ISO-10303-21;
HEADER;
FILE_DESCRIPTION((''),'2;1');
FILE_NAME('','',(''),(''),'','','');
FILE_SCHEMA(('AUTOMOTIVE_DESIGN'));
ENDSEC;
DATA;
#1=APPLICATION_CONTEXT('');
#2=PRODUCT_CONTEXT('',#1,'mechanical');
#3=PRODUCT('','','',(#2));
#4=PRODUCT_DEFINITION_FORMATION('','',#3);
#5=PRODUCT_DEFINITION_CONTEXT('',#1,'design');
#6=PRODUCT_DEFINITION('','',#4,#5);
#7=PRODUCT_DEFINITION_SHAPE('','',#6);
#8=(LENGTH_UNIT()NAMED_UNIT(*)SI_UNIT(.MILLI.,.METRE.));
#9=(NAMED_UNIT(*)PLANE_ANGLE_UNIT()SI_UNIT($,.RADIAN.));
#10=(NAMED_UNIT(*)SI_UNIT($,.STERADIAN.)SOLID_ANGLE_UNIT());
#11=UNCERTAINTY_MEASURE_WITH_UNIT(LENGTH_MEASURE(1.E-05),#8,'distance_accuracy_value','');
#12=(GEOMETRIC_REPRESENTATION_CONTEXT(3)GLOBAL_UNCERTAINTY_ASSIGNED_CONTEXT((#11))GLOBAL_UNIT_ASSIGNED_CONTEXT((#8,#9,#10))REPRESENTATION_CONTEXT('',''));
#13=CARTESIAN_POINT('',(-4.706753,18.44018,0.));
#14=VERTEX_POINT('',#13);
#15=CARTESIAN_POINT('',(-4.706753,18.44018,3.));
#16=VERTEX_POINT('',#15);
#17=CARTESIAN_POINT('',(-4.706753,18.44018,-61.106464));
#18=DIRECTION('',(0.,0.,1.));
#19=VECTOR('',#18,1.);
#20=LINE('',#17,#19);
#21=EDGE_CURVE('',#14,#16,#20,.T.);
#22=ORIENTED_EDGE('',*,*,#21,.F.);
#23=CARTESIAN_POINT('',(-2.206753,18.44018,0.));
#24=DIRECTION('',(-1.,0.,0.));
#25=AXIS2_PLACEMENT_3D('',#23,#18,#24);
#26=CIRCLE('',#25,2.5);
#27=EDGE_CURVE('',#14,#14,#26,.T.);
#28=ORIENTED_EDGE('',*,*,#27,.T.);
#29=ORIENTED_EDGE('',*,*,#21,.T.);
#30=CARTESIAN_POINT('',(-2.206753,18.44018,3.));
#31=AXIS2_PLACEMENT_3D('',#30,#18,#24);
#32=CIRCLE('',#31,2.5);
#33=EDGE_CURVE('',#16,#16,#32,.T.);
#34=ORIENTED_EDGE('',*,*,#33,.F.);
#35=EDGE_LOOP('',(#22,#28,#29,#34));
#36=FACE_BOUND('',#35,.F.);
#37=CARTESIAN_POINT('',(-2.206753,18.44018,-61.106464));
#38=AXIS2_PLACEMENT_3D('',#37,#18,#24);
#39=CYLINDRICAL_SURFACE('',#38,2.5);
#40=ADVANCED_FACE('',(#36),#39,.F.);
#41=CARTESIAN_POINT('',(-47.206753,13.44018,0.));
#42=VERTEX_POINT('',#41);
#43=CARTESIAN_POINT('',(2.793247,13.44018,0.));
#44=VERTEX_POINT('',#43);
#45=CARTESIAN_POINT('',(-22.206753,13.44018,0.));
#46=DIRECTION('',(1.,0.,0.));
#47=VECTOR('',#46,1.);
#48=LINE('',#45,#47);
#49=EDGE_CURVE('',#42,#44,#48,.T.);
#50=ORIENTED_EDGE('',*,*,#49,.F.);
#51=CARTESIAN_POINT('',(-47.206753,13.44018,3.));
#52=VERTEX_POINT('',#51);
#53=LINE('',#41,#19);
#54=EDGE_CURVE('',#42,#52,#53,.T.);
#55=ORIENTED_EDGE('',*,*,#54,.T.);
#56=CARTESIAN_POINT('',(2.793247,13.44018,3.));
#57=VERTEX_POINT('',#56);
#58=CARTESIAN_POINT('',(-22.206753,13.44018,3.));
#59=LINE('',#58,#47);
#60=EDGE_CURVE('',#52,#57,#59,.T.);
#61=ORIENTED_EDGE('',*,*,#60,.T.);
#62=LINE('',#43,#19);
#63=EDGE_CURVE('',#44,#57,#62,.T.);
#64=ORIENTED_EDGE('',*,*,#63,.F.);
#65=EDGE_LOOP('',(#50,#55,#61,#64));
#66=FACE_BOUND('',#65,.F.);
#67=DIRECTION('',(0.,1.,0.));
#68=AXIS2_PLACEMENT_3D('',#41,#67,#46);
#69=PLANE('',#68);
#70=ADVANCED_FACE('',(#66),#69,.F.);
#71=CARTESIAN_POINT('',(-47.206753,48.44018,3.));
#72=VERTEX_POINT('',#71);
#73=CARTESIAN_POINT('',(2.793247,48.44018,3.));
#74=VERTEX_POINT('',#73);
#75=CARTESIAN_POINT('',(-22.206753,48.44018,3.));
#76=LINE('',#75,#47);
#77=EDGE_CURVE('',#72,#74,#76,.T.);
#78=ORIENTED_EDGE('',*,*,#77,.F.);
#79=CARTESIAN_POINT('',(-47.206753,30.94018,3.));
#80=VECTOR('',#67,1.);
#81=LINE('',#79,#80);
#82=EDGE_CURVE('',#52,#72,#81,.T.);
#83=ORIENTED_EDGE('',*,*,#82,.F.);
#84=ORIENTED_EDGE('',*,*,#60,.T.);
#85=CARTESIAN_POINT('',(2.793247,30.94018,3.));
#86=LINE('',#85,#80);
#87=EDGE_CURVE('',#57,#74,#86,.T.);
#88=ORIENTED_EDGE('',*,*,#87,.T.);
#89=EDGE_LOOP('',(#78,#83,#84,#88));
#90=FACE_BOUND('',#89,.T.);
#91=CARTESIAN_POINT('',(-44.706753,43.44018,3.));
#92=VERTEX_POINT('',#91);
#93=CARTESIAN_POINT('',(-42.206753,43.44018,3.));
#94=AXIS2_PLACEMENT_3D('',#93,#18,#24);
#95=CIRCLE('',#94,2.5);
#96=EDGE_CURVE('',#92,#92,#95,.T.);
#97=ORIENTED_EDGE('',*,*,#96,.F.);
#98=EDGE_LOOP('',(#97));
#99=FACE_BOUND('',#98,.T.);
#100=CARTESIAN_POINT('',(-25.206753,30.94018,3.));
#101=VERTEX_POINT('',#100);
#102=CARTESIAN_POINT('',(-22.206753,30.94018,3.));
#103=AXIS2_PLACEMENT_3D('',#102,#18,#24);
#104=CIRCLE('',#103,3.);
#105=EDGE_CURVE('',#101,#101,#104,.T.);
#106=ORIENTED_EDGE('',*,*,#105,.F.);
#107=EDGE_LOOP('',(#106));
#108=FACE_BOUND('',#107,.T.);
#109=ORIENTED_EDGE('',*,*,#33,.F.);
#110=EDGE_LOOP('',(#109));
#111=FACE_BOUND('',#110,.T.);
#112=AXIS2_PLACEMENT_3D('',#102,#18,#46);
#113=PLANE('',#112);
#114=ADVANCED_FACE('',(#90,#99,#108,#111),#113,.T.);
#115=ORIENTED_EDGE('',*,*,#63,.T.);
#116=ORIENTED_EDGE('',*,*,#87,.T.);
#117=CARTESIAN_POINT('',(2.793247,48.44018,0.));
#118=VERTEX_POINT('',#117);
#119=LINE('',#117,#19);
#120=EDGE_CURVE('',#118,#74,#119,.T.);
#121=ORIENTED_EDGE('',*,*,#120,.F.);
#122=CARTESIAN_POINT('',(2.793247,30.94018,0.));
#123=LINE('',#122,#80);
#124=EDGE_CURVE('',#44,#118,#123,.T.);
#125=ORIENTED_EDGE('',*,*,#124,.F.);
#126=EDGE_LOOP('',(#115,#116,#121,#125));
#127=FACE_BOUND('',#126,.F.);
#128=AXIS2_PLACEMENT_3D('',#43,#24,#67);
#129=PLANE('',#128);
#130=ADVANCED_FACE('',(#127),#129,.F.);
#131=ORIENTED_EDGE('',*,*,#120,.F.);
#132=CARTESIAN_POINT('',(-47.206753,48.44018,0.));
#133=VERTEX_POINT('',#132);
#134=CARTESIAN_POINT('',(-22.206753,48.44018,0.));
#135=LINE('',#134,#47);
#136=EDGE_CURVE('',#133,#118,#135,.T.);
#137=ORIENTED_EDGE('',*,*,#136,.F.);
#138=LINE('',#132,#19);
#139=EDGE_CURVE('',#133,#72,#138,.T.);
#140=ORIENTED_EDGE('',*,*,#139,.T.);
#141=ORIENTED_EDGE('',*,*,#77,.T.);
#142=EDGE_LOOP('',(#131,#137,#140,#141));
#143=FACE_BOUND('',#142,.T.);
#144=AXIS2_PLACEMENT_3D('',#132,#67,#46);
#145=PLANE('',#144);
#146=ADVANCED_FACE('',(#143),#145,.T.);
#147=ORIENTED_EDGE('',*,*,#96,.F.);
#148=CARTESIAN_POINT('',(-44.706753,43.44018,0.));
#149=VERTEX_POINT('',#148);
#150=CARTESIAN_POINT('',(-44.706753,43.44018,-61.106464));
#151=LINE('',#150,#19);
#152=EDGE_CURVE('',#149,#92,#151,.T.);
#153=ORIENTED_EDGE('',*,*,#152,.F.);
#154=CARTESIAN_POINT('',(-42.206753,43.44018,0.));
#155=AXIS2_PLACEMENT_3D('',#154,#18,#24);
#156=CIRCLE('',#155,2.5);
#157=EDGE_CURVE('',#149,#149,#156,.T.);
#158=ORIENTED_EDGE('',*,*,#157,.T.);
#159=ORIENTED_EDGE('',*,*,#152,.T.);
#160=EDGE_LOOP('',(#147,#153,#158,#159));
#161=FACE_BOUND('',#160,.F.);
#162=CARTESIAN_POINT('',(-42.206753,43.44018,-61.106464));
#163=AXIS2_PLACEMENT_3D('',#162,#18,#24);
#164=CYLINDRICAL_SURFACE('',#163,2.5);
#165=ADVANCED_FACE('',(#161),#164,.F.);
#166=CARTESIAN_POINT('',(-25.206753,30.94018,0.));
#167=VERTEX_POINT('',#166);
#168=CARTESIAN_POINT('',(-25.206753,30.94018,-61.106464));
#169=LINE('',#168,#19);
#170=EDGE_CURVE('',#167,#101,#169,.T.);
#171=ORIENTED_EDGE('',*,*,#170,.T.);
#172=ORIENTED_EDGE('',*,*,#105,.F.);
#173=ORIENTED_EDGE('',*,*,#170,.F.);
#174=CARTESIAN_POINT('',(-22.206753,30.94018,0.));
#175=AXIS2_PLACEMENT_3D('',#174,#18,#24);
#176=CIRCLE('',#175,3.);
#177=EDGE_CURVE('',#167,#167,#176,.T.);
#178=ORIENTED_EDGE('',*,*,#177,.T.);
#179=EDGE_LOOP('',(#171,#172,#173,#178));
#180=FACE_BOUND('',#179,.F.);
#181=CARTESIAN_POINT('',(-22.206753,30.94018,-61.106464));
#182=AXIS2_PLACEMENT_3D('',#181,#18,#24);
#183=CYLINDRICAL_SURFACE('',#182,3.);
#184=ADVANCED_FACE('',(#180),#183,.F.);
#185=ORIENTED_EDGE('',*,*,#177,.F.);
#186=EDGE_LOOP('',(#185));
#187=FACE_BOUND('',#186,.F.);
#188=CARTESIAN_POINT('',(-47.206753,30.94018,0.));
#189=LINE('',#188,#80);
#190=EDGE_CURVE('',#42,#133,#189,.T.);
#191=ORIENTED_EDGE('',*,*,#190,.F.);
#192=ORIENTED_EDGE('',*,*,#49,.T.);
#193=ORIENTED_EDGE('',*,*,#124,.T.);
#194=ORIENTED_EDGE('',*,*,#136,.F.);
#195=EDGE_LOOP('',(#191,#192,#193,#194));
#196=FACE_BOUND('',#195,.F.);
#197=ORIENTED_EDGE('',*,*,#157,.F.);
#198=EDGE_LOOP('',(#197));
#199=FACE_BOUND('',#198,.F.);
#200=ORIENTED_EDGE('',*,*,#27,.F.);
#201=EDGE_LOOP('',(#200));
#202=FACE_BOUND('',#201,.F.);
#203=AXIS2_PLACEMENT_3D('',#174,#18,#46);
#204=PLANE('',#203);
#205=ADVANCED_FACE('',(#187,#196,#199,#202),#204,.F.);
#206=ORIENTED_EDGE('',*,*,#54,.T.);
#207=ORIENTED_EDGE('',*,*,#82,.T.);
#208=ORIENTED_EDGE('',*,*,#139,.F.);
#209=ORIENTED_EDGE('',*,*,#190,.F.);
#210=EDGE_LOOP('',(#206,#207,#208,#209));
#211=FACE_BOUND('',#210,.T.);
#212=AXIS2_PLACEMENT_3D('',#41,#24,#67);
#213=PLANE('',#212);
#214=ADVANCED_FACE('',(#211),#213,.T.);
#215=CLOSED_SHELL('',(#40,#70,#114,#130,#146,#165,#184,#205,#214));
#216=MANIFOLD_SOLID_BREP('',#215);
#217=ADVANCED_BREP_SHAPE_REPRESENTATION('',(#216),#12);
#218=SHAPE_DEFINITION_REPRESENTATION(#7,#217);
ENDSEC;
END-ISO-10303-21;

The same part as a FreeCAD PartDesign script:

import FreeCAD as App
import Part
import Sketcher

V = App.Vector

doc = App.newDocument("Part")
params = doc.addObject("Spreadsheet::Sheet", "Params")
for row, (alias, value) in enumerate([
    ("sketch1_width", "50 mm"),
    ("sketch1_height", "35 mm"),
    ("pad1_length", "3 mm"),
    ("sketch2_diameter", "6 mm"),
    ("hole_diameter", "6 mm"),
    ("sketch3_diameter", "5 mm"),
    ("hole2_diameter", "5 mm"),
    ("sketch4_diameter", "5 mm"),
    ("hole3_diameter", "5 mm"),
], start=1):
    params.set(f"A{row}", alias)
    params.set(f"B{row}", "=" + value)
    params.setAlias(f"B{row}", alias)

body = doc.addObject("PartDesign::Body", "Body")

# Sketch on XY plane
sketch1 = body.newObject("Sketcher::SketchObject", "Sketch")
sketch1.AttachmentSupport = (doc.getObject("XY_Plane"), [""])
sketch1.MapMode = "FlatFace"
sketch1.addGeometry(Part.LineSegment(V(-47, 48, 0), V(-47, 13, 0)), False)
sketch1.addGeometry(Part.LineSegment(V(-47, 13, 0), V(3, 13, 0)), False)
sketch1.addGeometry(Part.LineSegment(V(3, 13, 0), V(3, 48, 0)), False)
sketch1.addGeometry(Part.LineSegment(V(3, 48, 0), V(-47, 48, 0)), False)
sketch1.addConstraint(Sketcher.Constraint("Coincident", 0, 2, 1, 1))
sketch1.addConstraint(Sketcher.Constraint("Coincident", 1, 2, 2, 1))
sketch1.addConstraint(Sketcher.Constraint("Coincident", 2, 2, 3, 1))
sketch1.addConstraint(Sketcher.Constraint("Coincident", 3, 2, 0, 1))
sketch1.addConstraint(Sketcher.Constraint("Vertical", 0))
sketch1.addConstraint(Sketcher.Constraint("Horizontal", 1))
sketch1.addConstraint(Sketcher.Constraint("Vertical", 2))
sketch1.addConstraint(Sketcher.Constraint("Horizontal", 3))
sketch1.addConstraint(Sketcher.Constraint("DistanceX", 1, 1, 1, 2, 50.0))
sketch1.addConstraint(Sketcher.Constraint("DistanceY", 0, 2, 0, 1, 35.0))
sketch1.addConstraint(Sketcher.Constraint("DistanceY", -1, 1, 0, 2, 13.44018))
sketch1.addConstraint(Sketcher.Constraint("DistanceX", 0, 2, -1, 1, 47.206753))
sketch1.setExpression("Constraints[8]", "Params.sketch1_width")
sketch1.setExpression("Constraints[9]", "Params.sketch1_height")
pad1 = body.newObject("PartDesign::Pad", "Pad")
pad1.Profile = sketch1
pad1.setExpression("Length", "Params.pad1_length")

# Sketch on XY plane
sketch2 = body.newObject("Sketcher::SketchObject", "Sketch001")
sketch2.AttachmentSupport = (doc.getObject("XY_Plane"), [""])
sketch2.MapMode = "FlatFace"
sketch2.addGeometry(Part.Circle(V(-22.2, 30.9, 0), V(0, 0, 1), 3), False)
sketch2.addConstraint(Sketcher.Constraint("Diameter", 0, 6.0))
sketch2.addConstraint(Sketcher.Constraint("DistanceY", -1, 1, 0, 3, 30.94018))
sketch2.addConstraint(Sketcher.Constraint("DistanceX", 0, 3, -1, 1, 22.206753))
sketch2.setExpression("Constraints[0]", "Params.sketch2_diameter")
doc.recompute()
hole = body.newObject("PartDesign::Hole", "Hole")
hole.Profile = sketch2
hole.ThreadType = "None"
hole.setExpression("Diameter", "Params.hole_diameter")
hole.DepthType = "ThroughAll"
hole.Reversed = True

# Sketch on XY plane
sketch3 = body.newObject("Sketcher::SketchObject", "Sketch002")
sketch3.AttachmentSupport = (doc.getObject("XY_Plane"), [""])
sketch3.MapMode = "FlatFace"
sketch3.addGeometry(Part.Circle(V(-2.2, 18.4, 0), V(0, 0, 1), 2.5), False)
sketch3.addConstraint(Sketcher.Constraint("Diameter", 0, 5.0))
sketch3.addConstraint(Sketcher.Constraint("DistanceY", -1, 1, 0, 3, 18.44018))
sketch3.addConstraint(Sketcher.Constraint("DistanceX", 0, 3, -1, 1, 2.206753))
sketch3.setExpression("Constraints[0]", "Params.sketch3_diameter")
doc.recompute()
hole2 = body.newObject("PartDesign::Hole", "Hole001")
hole2.Profile = sketch3
hole2.ThreadType = "None"
hole2.setExpression("Diameter", "Params.hole2_diameter")
hole2.DepthType = "ThroughAll"
hole2.Reversed = True

# Sketch on XY plane
sketch4 = body.newObject("Sketcher::SketchObject", "Sketch003")
sketch4.AttachmentSupport = (doc.getObject("XY_Plane"), [""])
sketch4.MapMode = "FlatFace"
sketch4.addGeometry(Part.Circle(V(-42.2, 43.4, 0), V(0, 0, 1), 2.5), False)
sketch4.addConstraint(Sketcher.Constraint("Diameter", 0, 5.0))
sketch4.addConstraint(Sketcher.Constraint("DistanceY", -1, 1, 0, 3, 43.44018))
sketch4.addConstraint(Sketcher.Constraint("DistanceX", 0, 3, -1, 1, 42.206753))
sketch4.setExpression("Constraints[0]", "Params.sketch4_diameter")
doc.recompute()
hole3 = body.newObject("PartDesign::Hole", "Hole002")
hole3.Profile = sketch4
hole3.ThreadType = "None"
hole3.setExpression("Diameter", "Params.hole3_diameter")
hole3.DepthType = "ThroughAll"
hole3.Reversed = True

doc.recompute()
